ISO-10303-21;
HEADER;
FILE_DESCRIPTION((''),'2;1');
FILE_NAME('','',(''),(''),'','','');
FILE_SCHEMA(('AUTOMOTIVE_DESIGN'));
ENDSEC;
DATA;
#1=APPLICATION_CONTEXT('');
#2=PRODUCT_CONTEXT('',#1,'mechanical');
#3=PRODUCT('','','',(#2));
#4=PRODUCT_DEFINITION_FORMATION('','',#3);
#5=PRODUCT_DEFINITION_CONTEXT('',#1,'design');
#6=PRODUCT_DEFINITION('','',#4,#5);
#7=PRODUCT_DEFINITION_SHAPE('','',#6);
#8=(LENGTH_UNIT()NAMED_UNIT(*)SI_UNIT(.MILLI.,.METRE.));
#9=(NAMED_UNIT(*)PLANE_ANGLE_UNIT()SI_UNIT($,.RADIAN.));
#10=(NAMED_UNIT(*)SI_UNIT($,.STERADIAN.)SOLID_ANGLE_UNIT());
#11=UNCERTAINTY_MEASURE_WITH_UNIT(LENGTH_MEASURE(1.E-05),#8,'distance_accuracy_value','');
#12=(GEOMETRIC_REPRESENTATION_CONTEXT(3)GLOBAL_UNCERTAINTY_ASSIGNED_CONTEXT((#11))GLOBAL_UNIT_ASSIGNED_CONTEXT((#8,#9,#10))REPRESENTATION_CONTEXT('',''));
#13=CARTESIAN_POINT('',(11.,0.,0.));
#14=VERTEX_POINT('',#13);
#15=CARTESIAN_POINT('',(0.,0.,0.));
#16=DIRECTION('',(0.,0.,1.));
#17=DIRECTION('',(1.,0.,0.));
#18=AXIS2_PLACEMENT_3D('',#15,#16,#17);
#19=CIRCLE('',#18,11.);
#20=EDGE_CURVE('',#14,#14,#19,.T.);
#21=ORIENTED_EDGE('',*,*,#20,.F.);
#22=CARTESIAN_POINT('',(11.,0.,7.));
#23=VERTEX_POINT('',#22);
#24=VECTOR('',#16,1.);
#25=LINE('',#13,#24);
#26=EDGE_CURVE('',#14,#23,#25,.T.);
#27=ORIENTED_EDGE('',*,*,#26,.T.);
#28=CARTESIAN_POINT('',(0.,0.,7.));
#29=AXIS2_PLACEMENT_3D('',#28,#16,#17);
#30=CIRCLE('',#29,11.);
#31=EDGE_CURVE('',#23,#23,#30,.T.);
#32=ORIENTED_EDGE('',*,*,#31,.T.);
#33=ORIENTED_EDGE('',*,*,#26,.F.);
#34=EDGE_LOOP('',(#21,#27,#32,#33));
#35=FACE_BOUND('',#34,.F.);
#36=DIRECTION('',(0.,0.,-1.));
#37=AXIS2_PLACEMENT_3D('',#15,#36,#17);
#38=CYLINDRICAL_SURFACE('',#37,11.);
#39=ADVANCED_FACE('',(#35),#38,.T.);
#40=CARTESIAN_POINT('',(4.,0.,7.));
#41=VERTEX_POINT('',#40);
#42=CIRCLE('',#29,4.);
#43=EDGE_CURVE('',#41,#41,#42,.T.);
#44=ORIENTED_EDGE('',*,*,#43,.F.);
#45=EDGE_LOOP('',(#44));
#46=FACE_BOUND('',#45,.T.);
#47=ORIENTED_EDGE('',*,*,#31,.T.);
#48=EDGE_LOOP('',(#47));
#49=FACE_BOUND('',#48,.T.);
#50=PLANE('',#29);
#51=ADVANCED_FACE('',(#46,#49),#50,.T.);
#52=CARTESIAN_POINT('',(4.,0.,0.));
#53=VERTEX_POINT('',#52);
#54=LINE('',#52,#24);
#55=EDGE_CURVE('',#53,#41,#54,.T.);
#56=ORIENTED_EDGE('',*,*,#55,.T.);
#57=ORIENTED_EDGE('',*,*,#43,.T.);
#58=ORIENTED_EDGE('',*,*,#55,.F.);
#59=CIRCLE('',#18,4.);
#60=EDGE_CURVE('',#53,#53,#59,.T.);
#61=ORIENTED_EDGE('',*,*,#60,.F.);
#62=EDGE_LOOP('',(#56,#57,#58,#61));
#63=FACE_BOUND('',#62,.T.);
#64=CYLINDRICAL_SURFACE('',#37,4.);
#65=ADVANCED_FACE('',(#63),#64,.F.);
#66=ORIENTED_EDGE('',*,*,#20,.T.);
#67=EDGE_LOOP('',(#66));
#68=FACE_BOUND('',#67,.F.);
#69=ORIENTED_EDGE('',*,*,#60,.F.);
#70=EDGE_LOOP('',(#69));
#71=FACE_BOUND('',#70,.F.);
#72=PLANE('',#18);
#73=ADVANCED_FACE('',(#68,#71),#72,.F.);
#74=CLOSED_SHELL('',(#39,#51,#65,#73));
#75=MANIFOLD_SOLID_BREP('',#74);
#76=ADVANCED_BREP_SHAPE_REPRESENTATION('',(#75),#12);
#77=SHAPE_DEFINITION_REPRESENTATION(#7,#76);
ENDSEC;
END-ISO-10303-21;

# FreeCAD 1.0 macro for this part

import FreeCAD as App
import Part
import Sketcher
from FreeCAD import Vector

doc = App.newDocument("Part")
params = doc.addObject("Spreadsheet::Sheet", "Params")
for row, (alias, value) in enumerate([
    ("sketch1_diameter", "22 mm"),
    ("sketch1_diameter2", "8 mm"),
    ("pad1_length", "7 mm"),
], start=1):
    params.set(f"A{row}", alias)
    params.set(f"B{row}", "=" + value)
    params.setAlias(f"B{row}", alias)

body = doc.addObject("PartDesign::Body", "Body")

sketch1 = body.newObject("Sketcher::SketchObject", "Sketch")
sketch1.AttachmentSupport = (doc.getObject("XY_Plane"), [""])
sketch1.MapMode = "FlatFace"
sketch1.addGeometry(Part.Circle(Vector(0, 0, 0), Vector(0, 0, 1), 11), False)
sketch1.addGeometry(Part.Circle(Vector(0, 0, 0), Vector(0, 0, 1), 4), False)
sketch1.addConstraint(Sketcher.Constraint("Coincident", 0, 3, -1, 1))
sketch1.addConstraint(Sketcher.Constraint("Coincident", 1, 3, -1, 1))
sketch1.addConstraint(Sketcher.Constraint("Diameter", 0, 22.0))
sketch1.addConstraint(Sketcher.Constraint("Diameter", 1, 8.0))
sketch1.setExpression("Constraints[2]", "Params.sketch1_diameter")
sketch1.setExpression("Constraints[3]", "Params.sketch1_diameter2")
pad1 = body.newObject("PartDesign::Pad", "Pad")
pad1.Profile = sketch1
pad1.setExpression("Length", "Params.pad1_length")

doc.recompute()
